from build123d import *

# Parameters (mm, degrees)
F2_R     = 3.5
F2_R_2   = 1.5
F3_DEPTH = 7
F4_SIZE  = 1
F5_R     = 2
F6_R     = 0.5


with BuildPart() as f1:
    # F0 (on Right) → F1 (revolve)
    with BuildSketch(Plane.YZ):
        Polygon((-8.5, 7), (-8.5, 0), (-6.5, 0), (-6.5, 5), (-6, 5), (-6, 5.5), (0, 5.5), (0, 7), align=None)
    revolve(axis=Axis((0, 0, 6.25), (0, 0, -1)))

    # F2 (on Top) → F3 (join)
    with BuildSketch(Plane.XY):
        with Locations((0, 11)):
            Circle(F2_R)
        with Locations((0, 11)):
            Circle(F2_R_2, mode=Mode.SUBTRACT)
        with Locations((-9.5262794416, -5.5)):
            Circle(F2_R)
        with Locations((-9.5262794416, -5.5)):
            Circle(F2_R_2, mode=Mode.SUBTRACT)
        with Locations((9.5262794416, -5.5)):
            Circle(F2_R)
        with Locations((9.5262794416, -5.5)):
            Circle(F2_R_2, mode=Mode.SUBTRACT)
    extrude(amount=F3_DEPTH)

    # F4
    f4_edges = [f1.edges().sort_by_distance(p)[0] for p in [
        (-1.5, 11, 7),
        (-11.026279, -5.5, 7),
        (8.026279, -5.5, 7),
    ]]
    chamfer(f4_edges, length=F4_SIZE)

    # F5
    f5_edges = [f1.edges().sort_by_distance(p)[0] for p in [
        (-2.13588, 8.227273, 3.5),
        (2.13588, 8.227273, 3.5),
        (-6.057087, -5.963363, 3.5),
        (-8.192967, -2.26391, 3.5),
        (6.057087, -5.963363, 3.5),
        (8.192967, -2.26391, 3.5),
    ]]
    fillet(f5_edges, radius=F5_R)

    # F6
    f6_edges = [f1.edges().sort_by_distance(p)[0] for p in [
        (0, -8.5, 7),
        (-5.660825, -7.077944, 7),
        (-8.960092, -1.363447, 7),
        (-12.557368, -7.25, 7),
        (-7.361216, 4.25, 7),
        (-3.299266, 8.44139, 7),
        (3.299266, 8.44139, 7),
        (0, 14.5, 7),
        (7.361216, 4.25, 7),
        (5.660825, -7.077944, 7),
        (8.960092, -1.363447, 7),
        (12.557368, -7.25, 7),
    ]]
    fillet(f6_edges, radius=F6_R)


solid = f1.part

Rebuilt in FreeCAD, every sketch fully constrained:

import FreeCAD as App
import Part
import Sketcher
from FreeCAD import Vector


def edges_at(feature, points):
    """Names of the edges that pass closest to the given points."""
    edges = feature.Shape.Edges
    near = lambda p: min(range(len(edges)), key=lambda i: edges[i].distToShape(Part.Vertex(*p))[0])
    return sorted({f"Edge{near(p) + 1}" for p in points})

doc = App.newDocument("Part")
body = doc.addObject("PartDesign::Body", "Body")

# Sketch on YZ plane
sketch1 = doc.addObject("Sketcher::SketchObject", "Sketch")
body.addObject(sketch1)
sketch1.AttachmentSupport = (doc.YZ_Plane, [""])
sketch1.MapMode = "FlatFace"
sketch1.addGeometry([
    Part.LineSegment(Vector(-8.5, 7, 0), Vector(-8.5, 0, 0)),  # 0
    Part.LineSegment(Vector(-8.5, 0, 0), Vector(-6.5, 0, 0)),  # 1
    Part.LineSegment(Vector(-6.5, 0, 0), Vector(-6.5, 5, 0)),  # 2
    Part.LineSegment(Vector(-6.5, 5, 0), Vector(-6, 5, 0)),  # 3
    Part.LineSegment(Vector(-6, 5, 0), Vector(-6, 5.5, 0)),  # 4
    Part.LineSegment(Vector(-6, 5.5, 0), Vector(0, 5.5, 0)),  # 5
    Part.LineSegment(Vector(0, 5.5, 0), Vector(0, 7, 0)),  # 6
    Part.LineSegment(Vector(0, 7, 0), Vector(-8.5, 7, 0)),  # 7
], False)
sketch1.addConstraint([
    Sketcher.Constraint("Coincident", 0, 2, 1, 1),
    Sketcher.Constraint("Coincident", 1, 2, 2, 1),
    Sketcher.Constraint("Coincident", 2, 2, 3, 1),
    Sketcher.Constraint("Coincident", 3, 2, 4, 1),
    Sketcher.Constraint("Coincident", 4, 2, 5, 1),
    Sketcher.Constraint("Coincident", 5, 2, 6, 1),
    Sketcher.Constraint("Coincident", 6, 2, 7, 1),
    Sketcher.Constraint("Coincident", 7, 2, 0, 1),
    Sketcher.Constraint("Vertical", 0),
    Sketcher.Constraint("Horizontal", 1),
    Sketcher.Constraint("Vertical", 2),
    Sketcher.Constraint("Horizontal", 3),
    Sketcher.Constraint("Vertical", 4),
    Sketcher.Constraint("Horizontal", 5),
    Sketcher.Constraint("Vertical", 6),
    Sketcher.Constraint("Horizontal", 7),
    Sketcher.Constraint("PointOnObject", 0, 2, -1),
    Sketcher.Constraint("PointOnObject", 5, 2, -2),
    Sketcher.Constraint("Equal", 3, 4),
    Sketcher.Constraint("DistanceX", 1, 1, 1, 2, 2.0),
    Sketcher.Constraint("DistanceX", 5, 1, 5, 2, 6.0),
    Sketcher.Constraint("DistanceY", 0, 2, 0, 1, 7.0),
    Sketcher.Constraint("DistanceY", 2, 1, 2, 2, 5.0),
    Sketcher.Constraint("DistanceX", 3, 1, 3, 2, 0.5),
])
revolution = doc.addObject("PartDesign::Revolution", "Revolution")
body.addObject(revolution)
revolution.Profile = sketch1
revolution.ReferenceAxis = (sketch1, ["V_Axis"])
revolution.Angle = 360

# Sketch on XY plane
sketch2 = doc.addObject("Sketcher::SketchObject", "Sketch001")
body.addObject(sketch2)
sketch2.AttachmentSupport = (doc.XY_Plane, [""])
sketch2.MapMode = "FlatFace"
sketch2.addGeometry([
    Part.Circle(Vector(0, 11, 0), Vector(0, 0, 1), 3.5),  # 0
    Part.Circle(Vector(0, 11, 0), Vector(0, 0, 1), 1.5),  # 1
    Part.Circle(Vector(-9.5, -5.5, 0), Vector(0, 0, 1), 3.5),  # 2
    Part.Circle(Vector(-9.5, -5.5, 0), Vector(0, 0, 1), 1.5),  # 3
    Part.Circle(Vector(9.5, -5.5, 0), Vector(0, 0, 1), 3.5),  # 4
    Part.Circle(Vector(9.5, -5.5, 0), Vector(0, 0, 1), 1.5),  # 5
], False)
sketch2.addConstraint([
    Sketcher.Constraint("Coincident", 1, 3, 0, 3),
    Sketcher.Constraint("Coincident", 3, 3, 2, 3),
    Sketcher.Constraint("Coincident", 5, 3, 4, 3),
    Sketcher.Constraint("Equal", 0, 2),
    Sketcher.Constraint("Equal", 1, 3),
    Sketcher.Constraint("Equal", 2, 4),
    Sketcher.Constraint("Equal", 3, 5),
    Sketcher.Constraint("Symmetric", 2, 3, 4, 3, -2),
    Sketcher.Constraint("PointOnObject", 0, 3, -2),
    Sketcher.Constraint("Diameter", 0, 7.0),
    Sketcher.Constraint("Diameter", 1, 3.0),
    Sketcher.Constraint("DistanceY", -1, 1, 0, 3, 11.0),
    Sketcher.Constraint("DistanceY", 2, 3, -1, 1, 5.5),
    Sketcher.Constraint("DistanceX", 2, 3, -1, 1, 9.526279),
])
pad1 = doc.addObject("PartDesign::Pad", "Pad")
body.addObject(pad1)
pad1.Profile = sketch2
pad1.Length = 7
doc.recompute()

chamfer = doc.addObject("PartDesign::Chamfer", "Chamfer")
body.addObject(chamfer)
chamfer.Base = (pad1, edges_at(pad1, [(-1.5, 11, 7), (-11.026, -5.5, 7), (8.026, -5.5, 7)]))
chamfer.Size = 1
doc.recompute()

fillet = doc.addObject("PartDesign::Fillet", "Fillet")
body.addObject(fillet)
fillet.Base = (chamfer, edges_at(chamfer, [
    (-2.136, 8.227, 3.5),
    (2.136, 8.227, 3.5),
    (-6.057, -5.963, 3.5),
    (-8.193, -2.264, 3.5),
    (6.057, -5.963, 3.5),
    (8.193, -2.264, 3.5),
]))
fillet.Radius = 2
doc.recompute()

fillet2 = doc.addObject("PartDesign::Fillet", "Fillet001")
body.addObject(fillet2)
fillet2.Base = (fillet, edges_at(fillet, [
    (0, -8.5, 7),
    (-5.661, -7.078, 7),
    (-8.96, -1.363, 7),
    (-12.557, -7.25, 7),
    (-7.361, 4.25, 7),
    (-3.299, 8.441, 7),
    (3.299, 8.441, 7),
    (0, 14.5, 7),
    (7.361, 4.25, 7),
    (5.661, -7.078, 7),
    (8.96, -1.363, 7),
    (12.557, -7.25, 7),
]))
fillet2.Radius = 0.5

doc.recompute()
